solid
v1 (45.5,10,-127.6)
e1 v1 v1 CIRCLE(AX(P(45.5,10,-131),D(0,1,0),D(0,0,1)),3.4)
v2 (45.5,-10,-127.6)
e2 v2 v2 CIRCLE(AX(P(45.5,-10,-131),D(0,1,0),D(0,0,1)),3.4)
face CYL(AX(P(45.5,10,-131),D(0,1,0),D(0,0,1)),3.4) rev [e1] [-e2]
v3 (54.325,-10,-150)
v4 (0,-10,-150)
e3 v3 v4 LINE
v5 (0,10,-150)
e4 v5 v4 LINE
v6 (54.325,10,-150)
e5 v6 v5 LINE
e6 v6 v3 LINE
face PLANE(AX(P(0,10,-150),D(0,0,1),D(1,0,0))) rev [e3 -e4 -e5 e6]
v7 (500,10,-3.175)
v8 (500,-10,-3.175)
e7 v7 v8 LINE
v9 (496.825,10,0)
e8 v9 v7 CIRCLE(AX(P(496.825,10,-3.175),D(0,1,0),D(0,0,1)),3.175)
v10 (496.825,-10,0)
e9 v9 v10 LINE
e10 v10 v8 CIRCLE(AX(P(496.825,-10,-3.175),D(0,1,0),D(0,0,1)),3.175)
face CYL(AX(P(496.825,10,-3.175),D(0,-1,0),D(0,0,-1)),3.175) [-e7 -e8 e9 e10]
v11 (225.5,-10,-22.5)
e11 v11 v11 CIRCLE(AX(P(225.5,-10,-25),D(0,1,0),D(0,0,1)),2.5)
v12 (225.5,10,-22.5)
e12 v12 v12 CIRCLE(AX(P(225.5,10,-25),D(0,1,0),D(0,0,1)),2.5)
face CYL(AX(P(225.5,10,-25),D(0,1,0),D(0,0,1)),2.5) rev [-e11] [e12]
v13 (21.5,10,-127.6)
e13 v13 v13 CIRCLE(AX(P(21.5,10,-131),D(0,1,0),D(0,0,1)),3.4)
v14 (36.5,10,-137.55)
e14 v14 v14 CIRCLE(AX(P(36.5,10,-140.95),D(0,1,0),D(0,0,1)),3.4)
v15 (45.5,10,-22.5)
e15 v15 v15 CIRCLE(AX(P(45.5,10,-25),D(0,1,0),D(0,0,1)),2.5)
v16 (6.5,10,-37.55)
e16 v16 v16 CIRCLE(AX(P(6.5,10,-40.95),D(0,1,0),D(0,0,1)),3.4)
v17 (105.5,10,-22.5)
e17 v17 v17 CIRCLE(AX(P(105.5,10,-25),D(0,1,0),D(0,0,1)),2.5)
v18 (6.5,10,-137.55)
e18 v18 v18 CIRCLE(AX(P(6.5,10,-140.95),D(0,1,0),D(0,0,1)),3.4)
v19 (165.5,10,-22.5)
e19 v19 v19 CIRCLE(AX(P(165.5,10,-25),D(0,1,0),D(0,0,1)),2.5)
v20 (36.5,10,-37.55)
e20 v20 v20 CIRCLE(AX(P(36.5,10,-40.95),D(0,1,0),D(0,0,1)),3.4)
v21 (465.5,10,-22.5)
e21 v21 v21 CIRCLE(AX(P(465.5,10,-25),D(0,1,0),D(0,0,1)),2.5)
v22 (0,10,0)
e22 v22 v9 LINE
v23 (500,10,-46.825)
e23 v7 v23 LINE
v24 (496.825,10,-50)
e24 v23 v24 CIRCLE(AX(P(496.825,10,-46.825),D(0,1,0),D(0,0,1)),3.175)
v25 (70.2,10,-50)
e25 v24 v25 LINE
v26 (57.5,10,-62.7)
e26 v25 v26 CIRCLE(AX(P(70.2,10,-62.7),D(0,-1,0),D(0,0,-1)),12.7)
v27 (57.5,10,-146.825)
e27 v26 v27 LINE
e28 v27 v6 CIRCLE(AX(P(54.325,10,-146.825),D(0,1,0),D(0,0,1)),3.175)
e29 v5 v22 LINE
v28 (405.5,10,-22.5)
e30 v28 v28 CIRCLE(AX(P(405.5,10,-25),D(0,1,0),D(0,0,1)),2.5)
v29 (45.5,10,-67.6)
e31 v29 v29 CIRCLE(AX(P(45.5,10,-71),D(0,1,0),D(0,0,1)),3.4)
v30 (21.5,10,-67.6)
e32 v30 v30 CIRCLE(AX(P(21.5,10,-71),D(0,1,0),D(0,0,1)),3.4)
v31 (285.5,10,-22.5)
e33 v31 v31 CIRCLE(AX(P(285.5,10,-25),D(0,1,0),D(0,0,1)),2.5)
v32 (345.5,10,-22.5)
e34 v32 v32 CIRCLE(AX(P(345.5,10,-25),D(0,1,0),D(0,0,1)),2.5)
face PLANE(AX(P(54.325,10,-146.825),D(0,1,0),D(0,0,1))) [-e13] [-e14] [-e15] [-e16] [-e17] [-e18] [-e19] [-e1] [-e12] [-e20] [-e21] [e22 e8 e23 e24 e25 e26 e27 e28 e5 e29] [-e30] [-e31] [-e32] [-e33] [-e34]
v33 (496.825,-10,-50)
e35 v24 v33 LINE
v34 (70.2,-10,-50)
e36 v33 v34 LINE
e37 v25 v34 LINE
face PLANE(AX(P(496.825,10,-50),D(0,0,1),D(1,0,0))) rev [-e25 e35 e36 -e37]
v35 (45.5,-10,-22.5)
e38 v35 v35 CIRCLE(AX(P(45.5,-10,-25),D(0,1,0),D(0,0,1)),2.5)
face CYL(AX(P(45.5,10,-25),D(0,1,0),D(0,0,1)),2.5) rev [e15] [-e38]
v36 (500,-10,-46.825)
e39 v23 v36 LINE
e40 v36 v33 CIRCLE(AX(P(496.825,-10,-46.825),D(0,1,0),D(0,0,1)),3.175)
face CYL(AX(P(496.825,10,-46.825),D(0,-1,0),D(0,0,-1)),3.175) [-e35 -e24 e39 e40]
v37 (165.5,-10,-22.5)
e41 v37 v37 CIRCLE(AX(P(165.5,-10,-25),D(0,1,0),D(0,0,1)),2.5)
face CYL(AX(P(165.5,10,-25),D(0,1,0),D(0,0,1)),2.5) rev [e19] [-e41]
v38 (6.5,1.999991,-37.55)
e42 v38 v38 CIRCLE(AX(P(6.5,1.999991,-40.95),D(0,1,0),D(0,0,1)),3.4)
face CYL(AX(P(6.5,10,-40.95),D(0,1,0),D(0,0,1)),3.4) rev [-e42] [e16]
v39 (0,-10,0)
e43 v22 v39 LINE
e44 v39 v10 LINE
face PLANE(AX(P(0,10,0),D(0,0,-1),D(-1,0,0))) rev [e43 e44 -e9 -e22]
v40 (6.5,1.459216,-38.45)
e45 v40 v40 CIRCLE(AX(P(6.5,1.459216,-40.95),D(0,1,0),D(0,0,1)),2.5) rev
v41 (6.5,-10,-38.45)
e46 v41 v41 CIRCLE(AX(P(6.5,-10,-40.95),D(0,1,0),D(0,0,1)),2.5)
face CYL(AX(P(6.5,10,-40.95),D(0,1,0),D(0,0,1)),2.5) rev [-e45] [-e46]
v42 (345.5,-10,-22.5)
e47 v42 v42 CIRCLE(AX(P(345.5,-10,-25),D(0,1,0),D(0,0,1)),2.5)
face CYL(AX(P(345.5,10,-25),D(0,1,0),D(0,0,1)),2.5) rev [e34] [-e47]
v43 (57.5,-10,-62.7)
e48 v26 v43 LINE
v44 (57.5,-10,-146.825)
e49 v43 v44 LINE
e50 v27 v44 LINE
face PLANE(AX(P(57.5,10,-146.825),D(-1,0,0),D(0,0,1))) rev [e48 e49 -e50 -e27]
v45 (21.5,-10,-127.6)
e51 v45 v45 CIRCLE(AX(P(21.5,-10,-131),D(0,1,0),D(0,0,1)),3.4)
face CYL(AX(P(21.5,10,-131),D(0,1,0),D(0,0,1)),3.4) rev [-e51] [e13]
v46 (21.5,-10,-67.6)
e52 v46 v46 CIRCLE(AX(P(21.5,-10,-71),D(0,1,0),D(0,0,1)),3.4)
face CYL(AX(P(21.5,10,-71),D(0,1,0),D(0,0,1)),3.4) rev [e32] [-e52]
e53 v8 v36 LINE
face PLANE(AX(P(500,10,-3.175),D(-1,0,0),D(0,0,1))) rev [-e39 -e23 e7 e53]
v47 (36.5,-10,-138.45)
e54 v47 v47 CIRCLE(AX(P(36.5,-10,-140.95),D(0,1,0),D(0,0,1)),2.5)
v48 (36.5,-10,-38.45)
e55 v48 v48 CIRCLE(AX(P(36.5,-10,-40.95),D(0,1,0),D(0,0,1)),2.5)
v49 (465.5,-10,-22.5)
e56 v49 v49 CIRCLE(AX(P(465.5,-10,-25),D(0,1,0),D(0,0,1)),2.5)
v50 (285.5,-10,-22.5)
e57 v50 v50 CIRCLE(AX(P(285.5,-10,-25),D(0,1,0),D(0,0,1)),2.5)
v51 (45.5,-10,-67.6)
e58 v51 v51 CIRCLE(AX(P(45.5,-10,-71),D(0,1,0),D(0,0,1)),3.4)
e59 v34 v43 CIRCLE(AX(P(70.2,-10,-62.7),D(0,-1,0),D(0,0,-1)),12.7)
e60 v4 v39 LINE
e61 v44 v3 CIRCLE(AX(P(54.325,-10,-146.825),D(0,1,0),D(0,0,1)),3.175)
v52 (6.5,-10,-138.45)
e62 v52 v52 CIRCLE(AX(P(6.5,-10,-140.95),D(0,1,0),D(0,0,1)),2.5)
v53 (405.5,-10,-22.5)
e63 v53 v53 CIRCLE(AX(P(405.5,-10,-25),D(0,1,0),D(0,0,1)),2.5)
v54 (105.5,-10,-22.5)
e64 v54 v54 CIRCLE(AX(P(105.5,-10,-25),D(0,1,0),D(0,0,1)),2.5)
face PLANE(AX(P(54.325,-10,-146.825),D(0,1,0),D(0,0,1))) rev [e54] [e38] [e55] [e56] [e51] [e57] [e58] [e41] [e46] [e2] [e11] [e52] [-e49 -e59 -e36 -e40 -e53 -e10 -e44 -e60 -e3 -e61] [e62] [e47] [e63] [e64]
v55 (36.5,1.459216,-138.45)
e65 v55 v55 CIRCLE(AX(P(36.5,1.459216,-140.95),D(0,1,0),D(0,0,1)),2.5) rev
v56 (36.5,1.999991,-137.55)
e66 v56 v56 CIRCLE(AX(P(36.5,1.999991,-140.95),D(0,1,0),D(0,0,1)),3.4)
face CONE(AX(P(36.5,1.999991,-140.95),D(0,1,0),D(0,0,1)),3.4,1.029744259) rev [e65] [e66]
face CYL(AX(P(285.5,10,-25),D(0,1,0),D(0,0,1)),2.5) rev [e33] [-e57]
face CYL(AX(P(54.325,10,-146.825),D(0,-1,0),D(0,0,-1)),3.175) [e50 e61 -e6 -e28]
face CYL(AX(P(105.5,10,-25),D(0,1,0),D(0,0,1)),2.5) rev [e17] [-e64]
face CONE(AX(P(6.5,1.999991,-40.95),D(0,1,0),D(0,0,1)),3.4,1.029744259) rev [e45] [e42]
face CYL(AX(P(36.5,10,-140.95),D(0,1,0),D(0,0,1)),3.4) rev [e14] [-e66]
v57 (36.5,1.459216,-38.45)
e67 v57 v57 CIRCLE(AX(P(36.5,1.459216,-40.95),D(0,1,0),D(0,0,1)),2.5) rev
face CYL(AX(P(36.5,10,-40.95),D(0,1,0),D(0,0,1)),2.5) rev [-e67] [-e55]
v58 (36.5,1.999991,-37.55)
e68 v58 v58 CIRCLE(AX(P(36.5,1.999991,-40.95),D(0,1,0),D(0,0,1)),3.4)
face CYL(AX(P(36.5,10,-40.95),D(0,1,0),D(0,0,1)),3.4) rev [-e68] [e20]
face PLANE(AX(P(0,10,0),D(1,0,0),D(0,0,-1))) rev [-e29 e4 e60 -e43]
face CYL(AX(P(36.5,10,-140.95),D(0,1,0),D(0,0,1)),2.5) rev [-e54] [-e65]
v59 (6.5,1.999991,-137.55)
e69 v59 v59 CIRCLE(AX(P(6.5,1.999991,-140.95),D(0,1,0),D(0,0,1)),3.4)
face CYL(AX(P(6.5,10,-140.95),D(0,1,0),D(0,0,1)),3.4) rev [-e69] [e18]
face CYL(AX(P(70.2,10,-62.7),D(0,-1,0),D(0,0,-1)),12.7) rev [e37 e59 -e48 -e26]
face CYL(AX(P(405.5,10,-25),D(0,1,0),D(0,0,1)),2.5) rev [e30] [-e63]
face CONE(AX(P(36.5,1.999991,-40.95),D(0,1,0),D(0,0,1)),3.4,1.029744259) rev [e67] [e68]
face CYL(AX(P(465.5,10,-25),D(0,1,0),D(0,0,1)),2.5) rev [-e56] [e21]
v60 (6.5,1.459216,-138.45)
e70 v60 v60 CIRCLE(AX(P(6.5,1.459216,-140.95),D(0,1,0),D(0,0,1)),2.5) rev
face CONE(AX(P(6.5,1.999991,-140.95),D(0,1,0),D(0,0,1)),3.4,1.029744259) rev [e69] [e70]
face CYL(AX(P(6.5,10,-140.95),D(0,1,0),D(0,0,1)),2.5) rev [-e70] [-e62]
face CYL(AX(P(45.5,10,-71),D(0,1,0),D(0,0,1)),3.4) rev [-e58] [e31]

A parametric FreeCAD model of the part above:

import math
import FreeCAD as App
import Part
import Sketcher
Q = App.Units.Quantity


def add_polygon(sketch, points):
    """Adds a closed chain of lines whose ends are joined by coincident constraints."""
    first, n = sketch.GeometryCount, len(points)
    for a, b in zip(points, points[1:] + points[:1]):
        sketch.addGeometry(Part.LineSegment(App.Vector(*a, 0), App.Vector(*b, 0)), False)
    for i in range(n):
        sketch.addConstraint(Sketcher.Constraint("Coincident", first + i, 2, first + (i + 1) % n, 1))

doc = App.newDocument("Part")
body = doc.addObject("PartDesign::Body", "Body")

sketch1 = body.newObject("Sketcher::SketchObject", "Sketch")
sketch1.AttachmentSupport = (doc.getObject("XZ_Plane"), [""])
sketch1.MapMode = "FlatFace"
sketch1.addGeometry(Part.LineSegment(App.Vector(0, 0, 0), App.Vector(496.8, 0, 0)), False)
sketch1.addGeometry(Part.ArcOfCircle(Part.Circle(App.Vector(496.8, -3.2, 0), App.Vector(0, 0, 1), 3.2), math.radians(0), math.radians(90)), False)
sketch1.addGeometry(Part.LineSegment(App.Vector(500, -3.2, 0), App.Vector(500, -46.8, 0)), False)
sketch1.addGeometry(Part.ArcOfCircle(Part.Circle(App.Vector(496.8, -46.8, 0), App.Vector(0, 0, 1), 3.2), math.radians(-90), math.radians(0)), False)
sketch1.addGeometry(Part.LineSegment(App.Vector(496.8, -50, 0), App.Vector(70.2, -50, 0)), False)
sketch1.addGeometry(Part.ArcOfCircle(Part.Circle(App.Vector(70.2, -62.7, 0), App.Vector(0, 0, 1), 12.7), math.radians(90), math.radians(180)), False)
sketch1.addGeometry(Part.LineSegment(App.Vector(57.5, -62.7, 0), App.Vector(57.5, -146.8, 0)), False)
sketch1.addGeometry(Part.ArcOfCircle(Part.Circle(App.Vector(54.3, -146.8, 0), App.Vector(0, 0, 1), 3.2), math.radians(-90), math.radians(0)), False)
sketch1.addGeometry(Part.LineSegment(App.Vector(54.3, -150, 0), App.Vector(0, -150, 0)), False)
sketch1.addGeometry(Part.LineSegment(App.Vector(0, -150, 0), App.Vector(0, 0, 0)), False)
sketch1.addConstraint(Sketcher.Constraint("Tangent", 0, 2, 1, 2))
sketch1.addConstraint(Sketcher.Constraint("Tangent", 1, 1, 2, 1))
sketch1.addConstraint(Sketcher.Constraint("Tangent", 2, 2, 3, 2))
sketch1.addConstraint(Sketcher.Constraint("Tangent", 3, 1, 4, 1))
sketch1.addConstraint(Sketcher.Constraint("Tangent", 4, 2, 5, 1))
sketch1.addConstraint(Sketcher.Constraint("Tangent", 5, 2, 6, 1))
sketch1.addConstraint(Sketcher.Constraint("Tangent", 6, 2, 7, 2))
sketch1.addConstraint(Sketcher.Constraint("Tangent", 7, 1, 8, 1))
sketch1.addConstraint(Sketcher.Constraint("Coincident", 8, 2, 9, 1))
sketch1.addConstraint(Sketcher.Constraint("Coincident", 9, 2, 0, 1))
sketch1.addConstraint(Sketcher.Constraint("Horizontal", 0))
sketch1.addConstraint(Sketcher.Constraint("Vertical", 2))
sketch1.addConstraint(Sketcher.Constraint("Horizontal", 4))
sketch1.addConstraint(Sketcher.Constraint("Vertical", 6))
sketch1.addConstraint(Sketcher.Constraint("Horizontal", 8))
sketch1.addConstraint(Sketcher.Constraint("Vertical", 9))
sketch1.addConstraint(Sketcher.Constraint("Coincident", 9, 2, -1, 1))
sketch1.addConstraint(Sketcher.Constraint("Equal", 1, 3))
sketch1.addConstraint(Sketcher.Constraint("Equal", 3, 7))
sketch1.addConstraint(Sketcher.Constraint("Radius", 5, Q("12.7 mm")))
sketch1.addConstraint(Sketcher.Constraint("DistanceY", 9, 1, 9, 2, Q("150 mm")))
sketch1.addConstraint(Sketcher.Constraint("DistanceX", -1, 1, 1, 1, Q("500 mm")))
sketch1.addConstraint(Sketcher.Constraint("DistanceY", 3, 1, -1, 1, Q("50 mm")))
sketch1.addConstraint(Sketcher.Constraint("Radius", 1, Q("3.175 mm")))
sketch1.addConstraint(Sketcher.Constraint("DistanceX", -1, 1, 5, 3, Q("70.2 mm")))
pad1 = body.newObject("PartDesign::Pad", "Pad")
pad1.Profile = sketch1
pad1.Length = 20
pad1.Midplane = True

sketch2 = body.newObject("Sketcher::SketchObject", "Sketch001")
sketch2.AttachmentSupport = (doc.getObject("YZ_Plane"), [""])
sketch2.MapMode = "FlatFace"
sketch2.AttachmentOffset = App.Placement(App.Vector(0, 0, 45.5), App.Rotation())
add_polygon(sketch2, [(-19.5, -25), (10, -25), (10, -22.5), (-18, -22.5)])
sketch2.addGeometry(Part.LineSegment(App.Vector(10, -25, 0), App.Vector(-19.5, -25, 0)), True)
sketch2.addConstraint(Sketcher.Constraint("Horizontal", 0))
sketch2.addConstraint(Sketcher.Constraint("Vertical", 1))
sketch2.addConstraint(Sketcher.Constraint("Horizontal", 2))
sketch2.addConstraint(Sketcher.Constraint("Horizontal", 4))
sketch2.addConstraint(Sketcher.Constraint("Coincident", 4, 1, 0, 2))
sketch2.addConstraint(Sketcher.Constraint("Equal", 0, 4))
sketch2.addConstraint(Sketcher.Constraint("Angle", 3, Q("-121 deg")))
sketch2.addConstraint(Sketcher.Constraint("DistanceY", 1, 1, 1, 2, Q("2.5 mm")))
sketch2.addConstraint(Sketcher.Constraint("DistanceX", -1, 1, 0, 2, Q("10 mm")))
sketch2.addConstraint(Sketcher.Constraint("DistanceY", 0, 2, -1, 1, Q("25 mm")))
sketch2.addConstraint(Sketcher.Constraint("DistanceX", 2, 2, 2, 1, Q("27.9908 mm")))
groove = body.newObject("PartDesign::Groove", "Groove")
groove.Profile = sketch2
groove.ReferenceAxis = (sketch2, ["Axis0"])
groove.Angle = 360
doc.recompute()

linearpattern = body.newObject("PartDesign::LinearPattern", "LinearPattern")
linearpattern.Originals = [groove]
linearpattern.Direction = (doc.getObject("X_Axis"), [""])
linearpattern.Mode = "offset"
linearpattern.Offset = 60
linearpattern.Occurrences = 8
body.Tip = linearpattern

sketch3 = body.newObject("Sketcher::SketchObject", "Sketch002")
sketch3.AttachmentSupport = (doc.getObject("XZ_Plane"), [""])
sketch3.MapMode = "FlatFace"
sketch3.AttachmentOffset = App.Placement(App.Vector(0, 0, -10), App.Rotation())
sketch3.addGeometry(Part.Circle(App.Vector(45.5, -131, 0), App.Vector(0, 0, 1), 3.4), False)
sketch3.addGeometry(Part.Circle(App.Vector(21.5, -131, 0), App.Vector(0, 0, 1), 3.4), False)
sketch3.addGeometry(Part.Circle(App.Vector(45.5, -71, 0), App.Vector(0, 0, 1), 3.4), False)
sketch3.addGeometry(Part.Circle(App.Vector(21.5, -71, 0), App.Vector(0, 0, 1), 3.4), False)
sketch3.addConstraint(Sketcher.Constraint("Equal", 0, 1))
sketch3.addConstraint(Sketcher.Constraint("Equal", 1, 2))
sketch3.addConstraint(Sketcher.Constraint("Equal", 2, 3))
sketch3.addConstraint(Sketcher.Constraint("Horizontal", 0, 3, 1, 3))
sketch3.addConstraint(Sketcher.Constraint("Horizontal", 2, 3, 3, 3))
sketch3.addConstraint(Sketcher.Constraint("Vertical", 0, 3, 2, 3))
sketch3.addConstraint(Sketcher.Constraint("Vertical", 1, 3, 3, 3))
sketch3.addConstraint(Sketcher.Constraint("Diameter", 0, Q("6.8 mm")))
sketch3.addConstraint(Sketcher.Constraint("DistanceY", 0, 3, -1, 1, Q("131 mm")))
sketch3.addConstraint(Sketcher.Constraint("DistanceY", 2, 3, -1, 1, Q("71 mm")))
sketch3.addConstraint(Sketcher.Constraint("DistanceX", 1, 3, 0, 3, Q("24 mm")))
sketch3.addConstraint(Sketcher.Constraint("DistanceX", -1, 1, 0, 3, Q("45.5 mm")))
doc.recompute()
hole = body.newObject("PartDesign::Hole", "Hole")
hole.Profile = sketch3
hole.ThreadType = "None"
hole.Diameter = 6.8
hole.DepthType = "ThroughAll"
hole.Reversed = True

sketch4 = body.newObject("Sketcher::SketchObject", "Sketch003")
sketch4.AttachmentSupport = (doc.getObject("XZ_Plane"), [""])
sketch4.MapMode = "FlatFace"
sketch4.AttachmentOffset = App.Placement(App.Vector(0, 0, -10), App.Rotation())
sketch4.addGeometry(Part.Circle(App.Vector(36.5, -141, 0), App.Vector(0, 0, 1), 3.4), False)
sketch4.addGeometry(Part.Circle(App.Vector(6.5, -141, 0), App.Vector(0, 0, 1), 3.4), False)
sketch4.addGeometry(Part.Circle(App.Vector(6.5, -41, 0), App.Vector(0, 0, 1), 3.4), False)
sketch4.addGeometry(Part.Circle(App.Vector(36.5, -41, 0), App.Vector(0, 0, 1), 3.4), False)
sketch4.addConstraint(Sketcher.Constraint("Equal", 0, 1))
sketch4.addConstraint(Sketcher.Constraint("Equal", 1, 2))
sketch4.addConstraint(Sketcher.Constraint("Equal", 2, 3))
sketch4.addConstraint(Sketcher.Constraint("Horizontal", 0, 3, 1, 3))
sketch4.addConstraint(Sketcher.Constraint("Horizontal", 2, 3, 3, 3))
sketch4.addConstraint(Sketcher.Constraint("Vertical", 1, 3, 2, 3))
sketch4.addConstraint(Sketcher.Constraint("Vertical", 0, 3, 3, 3))
sketch4.addConstraint(Sketcher.Constraint("Diameter", 0, Q("6.8 mm")))
sketch4.addConstraint(Sketcher.Constraint("DistanceX", 1, 3, 0, 3, Q("30 mm")))
sketch4.addConstraint(Sketcher.Constraint("DistanceY", 1, 3, 2, 3, Q("100 mm")))
sketch4.addConstraint(Sketcher.Constraint("DistanceX", -1, 1, 0, 3, Q("36.5 mm")))
sketch4.addConstraint(Sketcher.Constraint("DistanceY", 0, 3, -1, 1, Q("140.95 mm")))
doc.recompute()
hole2 = body.newObject("PartDesign::Hole", "Hole001")
hole2.Profile = sketch4
hole2.ThreadType = "None"
hole2.Diameter = 6.8
hole2.DepthType = "Dimension"
hole2.Depth = 8.000009
hole2.DrillPoint = "Angled"
hole2.DrillPointAngle = 118
hole2.Reversed = True

sketch5 = body.newObject("Sketcher::SketchObject", "Sketch004")
sketch5.AttachmentSupport = (doc.getObject("XZ_Plane"), [""])
sketch5.MapMode = "FlatFace"
sketch5.AttachmentOffset = App.Placement(App.Vector(0, 0, -10), App.Rotation())
sketch5.addGeometry(Part.Circle(App.Vector(6.5, -141, 0), App.Vector(0, 0, 1), 2.5), False)
sketch5.addGeometry(Part.Circle(App.Vector(36.5, -141, 0), App.Vector(0, 0, 1), 2.5), False)
sketch5.addGeometry(Part.Circle(App.Vector(36.5, -41, 0), App.Vector(0, 0, 1), 2.5), False)
sketch5.addGeometry(Part.Circle(App.Vector(6.5, -41, 0), App.Vector(0, 0, 1), 2.5), False)
sketch5.addConstraint(Sketcher.Constraint("Equal", 0, 1))
sketch5.addConstraint(Sketcher.Constraint("Equal", 1, 2))
sketch5.addConstraint(Sketcher.Constraint("Equal", 2, 3))
sketch5.addConstraint(Sketcher.Constraint("Horizontal", 0, 3, 1, 3))
sketch5.addConstraint(Sketcher.Constraint("Horizontal", 2, 3, 3, 3))
sketch5.addConstraint(Sketcher.Constraint("Vertical", 1, 3, 2, 3))
sketch5.addConstraint(Sketcher.Constraint("Vertical", 0, 3, 3, 3))
sketch5.addConstraint(Sketcher.Constraint("Diameter", 0, Q("5 mm")))
sketch5.addConstraint(Sketcher.Constraint("DistanceX", 0, 3, 1, 3, Q("30 mm")))
sketch5.addConstraint(Sketcher.Constraint("DistanceY", 1, 3, 2, 3, Q("100 mm")))
sketch5.addConstraint(Sketcher.Constraint("DistanceX", -1, 1, 0, 3, Q("6.5 mm")))
sketch5.addConstraint(Sketcher.Constraint("DistanceY", 0, 3, -1, 1, Q("140.95 mm")))
doc.recompute()
hole3 = body.newObject("PartDesign::Hole", "Hole002")
hole3.Profile = sketch5
hole3.ThreadType = "None"
hole3.Diameter = 5
hole3.DepthType = "ThroughAll"
hole3.Reversed = True

doc.recompute()
